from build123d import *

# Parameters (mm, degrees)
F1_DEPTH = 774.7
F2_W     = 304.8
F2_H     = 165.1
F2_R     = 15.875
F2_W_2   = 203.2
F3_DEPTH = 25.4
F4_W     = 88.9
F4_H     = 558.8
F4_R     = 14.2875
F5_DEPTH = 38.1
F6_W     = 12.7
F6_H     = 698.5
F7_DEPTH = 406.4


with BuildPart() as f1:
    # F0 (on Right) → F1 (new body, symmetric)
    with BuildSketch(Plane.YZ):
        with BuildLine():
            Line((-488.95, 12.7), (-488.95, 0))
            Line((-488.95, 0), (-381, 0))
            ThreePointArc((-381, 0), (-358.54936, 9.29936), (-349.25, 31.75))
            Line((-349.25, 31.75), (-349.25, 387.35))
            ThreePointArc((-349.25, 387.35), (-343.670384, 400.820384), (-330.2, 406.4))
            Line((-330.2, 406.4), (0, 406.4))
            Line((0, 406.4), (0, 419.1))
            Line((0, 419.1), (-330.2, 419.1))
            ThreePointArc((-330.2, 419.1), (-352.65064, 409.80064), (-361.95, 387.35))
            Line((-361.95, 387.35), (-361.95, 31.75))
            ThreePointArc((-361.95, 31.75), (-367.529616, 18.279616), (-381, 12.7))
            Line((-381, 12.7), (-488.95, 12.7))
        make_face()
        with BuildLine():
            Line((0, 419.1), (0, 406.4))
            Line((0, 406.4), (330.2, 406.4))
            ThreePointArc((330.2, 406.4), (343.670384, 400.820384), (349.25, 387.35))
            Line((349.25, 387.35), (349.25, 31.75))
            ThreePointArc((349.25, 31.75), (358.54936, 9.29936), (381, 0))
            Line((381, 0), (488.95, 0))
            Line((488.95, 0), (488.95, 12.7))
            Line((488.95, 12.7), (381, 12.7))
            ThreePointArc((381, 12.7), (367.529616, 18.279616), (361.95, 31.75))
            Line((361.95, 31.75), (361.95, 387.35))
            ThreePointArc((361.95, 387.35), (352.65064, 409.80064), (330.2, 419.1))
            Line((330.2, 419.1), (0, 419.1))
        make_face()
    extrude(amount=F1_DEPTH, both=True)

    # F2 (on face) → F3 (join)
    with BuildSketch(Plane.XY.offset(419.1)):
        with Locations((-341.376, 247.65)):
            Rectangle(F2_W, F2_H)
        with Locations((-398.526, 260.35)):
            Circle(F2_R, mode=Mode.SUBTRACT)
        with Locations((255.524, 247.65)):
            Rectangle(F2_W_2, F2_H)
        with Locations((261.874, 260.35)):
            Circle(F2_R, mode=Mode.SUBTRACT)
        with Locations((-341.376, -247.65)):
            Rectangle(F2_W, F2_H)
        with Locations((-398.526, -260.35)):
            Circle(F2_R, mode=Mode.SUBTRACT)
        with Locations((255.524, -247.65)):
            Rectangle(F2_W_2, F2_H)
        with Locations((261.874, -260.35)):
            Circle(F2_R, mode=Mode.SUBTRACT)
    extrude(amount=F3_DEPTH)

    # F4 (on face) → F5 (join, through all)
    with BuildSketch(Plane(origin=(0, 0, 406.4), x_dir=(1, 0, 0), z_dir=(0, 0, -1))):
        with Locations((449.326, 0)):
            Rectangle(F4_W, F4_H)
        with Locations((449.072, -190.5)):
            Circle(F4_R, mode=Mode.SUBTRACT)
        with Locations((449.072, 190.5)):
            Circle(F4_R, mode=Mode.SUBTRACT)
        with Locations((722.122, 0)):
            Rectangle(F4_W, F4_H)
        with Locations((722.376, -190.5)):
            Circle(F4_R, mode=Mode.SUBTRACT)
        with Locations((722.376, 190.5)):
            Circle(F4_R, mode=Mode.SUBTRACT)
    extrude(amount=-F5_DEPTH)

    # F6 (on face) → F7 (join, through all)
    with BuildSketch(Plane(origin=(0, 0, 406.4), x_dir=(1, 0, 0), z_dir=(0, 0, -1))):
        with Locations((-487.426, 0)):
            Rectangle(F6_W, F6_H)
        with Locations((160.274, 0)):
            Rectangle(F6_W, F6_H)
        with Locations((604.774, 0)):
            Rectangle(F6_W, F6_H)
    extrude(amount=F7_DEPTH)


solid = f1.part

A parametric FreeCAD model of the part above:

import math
import FreeCAD as App
import Part
import Sketcher
from FreeCAD import Vector
Q = App.Units.Quantity


def add_polygon(sketch, points):
    """Adds a closed chain of lines whose ends are joined by coincident constraints."""
    first, n = sketch.GeometryCount, len(points)
    for a, b in zip(points, points[1:] + points[:1]):
        sketch.addGeometry(Part.LineSegment(App.Vector(*a, 0), App.Vector(*b, 0)), False)
    for i in range(n):
        sketch.addConstraint(Sketcher.Constraint("Coincident", first + i, 2, first + (i + 1) % n, 1))

doc = App.newDocument("Part")
body = doc.addObject("PartDesign::Body", "Body")

# Sketch on YZ plane
sketch1 = body.newObject("Sketcher::SketchObject", "Sketch")
sketch1.AttachmentSupport = (doc.getObject("YZ_Plane"), [""])
sketch1.MapMode = "FlatFace"
sketch1.addGeometry(Part.LineSegment(Vector(-488.95, 12.7, 0), Vector(-488.95, 0, 0)), False)
sketch1.addGeometry(Part.LineSegment(Vector(-488.95, 0, 0), Vector(-381, 0, 0)), False)
sketch1.addGeometry(Part.ArcOfCircle(Part.Circle(Vector(-381.000001, 31.750001, 0), Vector(0, 0, 1), 31.750001), math.radians(-89.999998), math.radians(-0.000002)), False)
sketch1.addGeometry(Part.LineSegment(Vector(-349.25, 31.75, 0), Vector(-349.25, 387.35, 0)), False)
sketch1.addGeometry(Part.ArcOfCircle(Part.Circle(Vector(-330.199999, 387.349999, 0), Vector(0, 0, 1), 19.050001), math.radians(90.000002), math.radians(179.999998)), False)
sketch1.addGeometry(Part.LineSegment(Vector(-330.2, 406.4, 0), Vector(330.2, 406.4, 0)), False)
sketch1.addGeometry(Part.ArcOfCircle(Part.Circle(Vector(330.199999, 387.349999, 0), Vector(0, 0, 1), 19.050001), math.radians(0.000002), math.radians(89.999998)), False)
sketch1.addGeometry(Part.LineSegment(Vector(349.25, 387.35, 0), Vector(349.25, 31.75, 0)), False)
sketch1.addGeometry(Part.ArcOfCircle(Part.Circle(Vector(381.000001, 31.750001, 0), Vector(0, 0, 1), 31.750001), math.radians(-179.999998), math.radians(-90.000002)), False)
sketch1.addGeometry(Part.LineSegment(Vector(381, 0, 0), Vector(488.95, 0, 0)), False)
sketch1.addGeometry(Part.LineSegment(Vector(488.95, 0, 0), Vector(488.95, 12.7, 0)), False)
sketch1.addGeometry(Part.LineSegment(Vector(488.95, 12.7, 0), Vector(381, 12.7, 0)), False)
sketch1.addGeometry(Part.ArcOfCircle(Part.Circle(Vector(381.000001, 31.750001, 0), Vector(0, 0, 1), 19.050001), math.radians(-179.999998), math.radians(-90.000002)), False)
sketch1.addGeometry(Part.LineSegment(Vector(361.95, 31.75, 0), Vector(361.95, 387.35, 0)), False)
sketch1.addGeometry(Part.ArcOfCircle(Part.Circle(Vector(330.199999, 387.349999, 0), Vector(0, 0, 1), 31.750001), math.radians(0.000002), math.radians(89.999998)), False)
sketch1.addGeometry(Part.LineSegment(Vector(330.2, 419.1, 0), Vector(-330.2, 419.1, 0)), False)
sketch1.addGeometry(Part.ArcOfCircle(Part.Circle(Vector(-330.199999, 387.349999, 0), Vector(0, 0, 1), 31.750001), math.radians(90.000002), math.radians(179.999998)), False)
sketch1.addGeometry(Part.LineSegment(Vector(-361.95, 387.35, 0), Vector(-361.95, 31.75, 0)), False)
sketch1.addGeometry(Part.ArcOfCircle(Part.Circle(Vector(-381.000001, 31.750001, 0), Vector(0, 0, 1), 19.050001), math.radians(-89.999998), math.radians(-0.000002)), False)
sketch1.addGeometry(Part.LineSegment(Vector(-381, 12.7, 0), Vector(-488.95, 12.7, 0)), False)
sketch1.addConstraint(Sketcher.Constraint("Coincident", 0, 2, 1, 1))
sketch1.addConstraint(Sketcher.Constraint("Tangent", 1, 2, 2, 1))
sketch1.addConstraint(Sketcher.Constraint("Tangent", 2, 2, 3, 1))
sketch1.addConstraint(Sketcher.Constraint("Tangent", 3, 2, 4, 2))
sketch1.addConstraint(Sketcher.Constraint("Tangent", 4, 1, 5, 1))
sketch1.addConstraint(Sketcher.Constraint("Tangent", 5, 2, 6, 2))
sketch1.addConstraint(Sketcher.Constraint("Tangent", 6, 1, 7, 1))
sketch1.addConstraint(Sketcher.Constraint("Tangent", 7, 2, 8, 1))
sketch1.addConstraint(Sketcher.Constraint("Tangent", 8, 2, 9, 1))
sketch1.addConstraint(Sketcher.Constraint("Coincident", 9, 2, 10, 1))
sketch1.addConstraint(Sketcher.Constraint("Coincident", 10, 2, 11, 1))
sketch1.addConstraint(Sketcher.Constraint("Tangent", 11, 2, 12, 2))
sketch1.addConstraint(Sketcher.Constraint("Tangent", 12, 1, 13, 1))
sketch1.addConstraint(Sketcher.Constraint("Tangent", 13, 2, 14, 1))
sketch1.addConstraint(Sketcher.Constraint("Tangent", 14, 2, 15, 1))
sketch1.addConstraint(Sketcher.Constraint("Tangent", 15, 2, 16, 1))
sketch1.addConstraint(Sketcher.Constraint("Tangent", 16, 2, 17, 1))
sketch1.addConstraint(Sketcher.Constraint("Tangent", 17, 2, 18, 2))
sketch1.addConstraint(Sketcher.Constraint("Tangent", 18, 1, 19, 1))
sketch1.addConstraint(Sketcher.Constraint("Coincident", 19, 2, 0, 1))
sketch1.addConstraint(Sketcher.Constraint("Vertical", 0))
sketch1.addConstraint(Sketcher.Constraint("Horizontal", 1))
sketch1.addConstraint(Sketcher.Constraint("Vertical", 3))
sketch1.addConstraint(Sketcher.Constraint("Horizontal", 5))
sketch1.addConstraint(Sketcher.Constraint("Vertical", 7))
sketch1.addConstraint(Sketcher.Constraint("Horizontal", 9))
sketch1.addConstraint(Sketcher.Constraint("Vertical", 10))
sketch1.addConstraint(Sketcher.Constraint("Horizontal", 11))
sketch1.addConstraint(Sketcher.Constraint("Vertical", 13))
sketch1.addConstraint(Sketcher.Constraint("Horizontal", 15))
sketch1.addConstraint(Sketcher.Constraint("Vertical", 17))
sketch1.addConstraint(Sketcher.Constraint("Horizontal", 19))
sketch1.addConstraint(Sketcher.Constraint("Coincident", 12, 3, 8, 3))
sketch1.addConstraint(Sketcher.Constraint("Coincident", 14, 3, 6, 3))
sketch1.addConstraint(Sketcher.Constraint("Coincident", 16, 3, 4, 3))
sketch1.addConstraint(Sketcher.Constraint("Coincident", 18, 3, 2, 3))
sketch1.addConstraint(Sketcher.Constraint("Equal", 4, 6))
sketch1.addConstraint(Sketcher.Constraint("Equal", 2, 8))
sketch1.addConstraint(Sketcher.Constraint("Equal", 6, 12))
sketch1.addConstraint(Sketcher.Constraint("Symmetric", 1, 2, 8, 2, -1, 1))
sketch1.addConstraint(Sketcher.Constraint("Symmetric", 0, 2, 9, 2, -2))
sketch1.addConstraint(Sketcher.Constraint("DistanceX", 5, 1, 5, 2, Q("26 in")))
sketch1.addConstraint(Sketcher.Constraint("DistanceY", 3, 1, 3, 2, Q("14 in")))
sketch1.addConstraint(Sketcher.Constraint("Radius", 2, Q("1.25 in")))
sketch1.addConstraint(Sketcher.Constraint("Radius", 4, Q("0.75 in")))
sketch1.addConstraint(Sketcher.Constraint("DistanceX", 0, 2, 17, 2, Q("5 in")))
pad1 = body.newObject("PartDesign::Pad", "Pad")
pad1.Profile = sketch1
pad1.Length = Q("61 in")
pad1.Midplane = True

# Sketch on XY plane
sketch2 = body.newObject("Sketcher::SketchObject", "Sketch001")
sketch2.AttachmentSupport = (doc.getObject("XY_Plane"), [""])
sketch2.MapMode = "FlatFace"
sketch2.AttachmentOffset = App.Placement(Vector(0, 0, 16.5 * 25.4), App.Rotation())
add_polygon(sketch2, [(-493.776, 330.2), (-493.776, 165.1), (-188.976, 165.1), (-188.976, 330.2)])  # lines 0-3
sketch2.addGeometry(Part.Circle(Vector(-398.526, 260.35, 0), Vector(0, 0, 1), 15.875), False)  # 4
add_polygon(sketch2, [(153.924, 330.2), (153.924, 165.1), (357.124, 165.1), (357.124, 330.2)])  # lines 5-8
sketch2.addGeometry(Part.Circle(Vector(261.874, 260.35, 0), Vector(0, 0, 1), 15.875), False)  # 9
add_polygon(sketch2, [(-493.776, -165.1), (-493.776, -330.2), (-188.976, -330.2), (-188.976, -165.1)])  # lines 10-13
sketch2.addGeometry(Part.Circle(Vector(-398.526, -260.35, 0), Vector(0, 0, 1), 15.875), False)  # 14
add_polygon(sketch2, [(153.924, -165.1), (153.924, -330.2), (357.124, -330.2), (357.124, -165.1)])  # lines 15-18
sketch2.addGeometry(Part.Circle(Vector(261.874, -260.35, 0), Vector(0, 0, 1), 15.875), False)  # 19
sketch2.addConstraint(Sketcher.Constraint("Vertical", 0))
sketch2.addConstraint(Sketcher.Constraint("Horizontal", 1))
sketch2.addConstraint(Sketcher.Constraint("Vertical", 2))
sketch2.addConstraint(Sketcher.Constraint("Horizontal", 3))
sketch2.addConstraint(Sketcher.Constraint("Vertical", 5))
sketch2.addConstraint(Sketcher.Constraint("Horizontal", 6))
sketch2.addConstraint(Sketcher.Constraint("Vertical", 7))
sketch2.addConstraint(Sketcher.Constraint("Horizontal", 8))
sketch2.addConstraint(Sketcher.Constraint("Vertical", 10))
sketch2.addConstraint(Sketcher.Constraint("Horizontal", 11))
sketch2.addConstraint(Sketcher.Constraint("Vertical", 12))
sketch2.addConstraint(Sketcher.Constraint("Horizontal", 13))
sketch2.addConstraint(Sketcher.Constraint("Vertical", 15))
sketch2.addConstraint(Sketcher.Constraint("Horizontal", 16))
sketch2.addConstraint(Sketcher.Constraint("Vertical", 17))
sketch2.addConstraint(Sketcher.Constraint("Horizontal", 18))
sketch2.addConstraint(Sketcher.Constraint("Equal", 4, 9))
sketch2.addConstraint(Sketcher.Constraint("Equal", 9, 14))
sketch2.addConstraint(Sketcher.Constraint("Equal", 14, 19))
sketch2.addConstraint(Sketcher.Constraint("Symmetric", 4, 3, 14, 3, -1))
sketch2.addConstraint(Sketcher.Constraint("Symmetric", 9, 3, 19, 3, -1))
sketch2.addConstraint(Sketcher.Constraint("Symmetric", 3, 2, 10, 2, -1))
sketch2.addConstraint(Sketcher.Constraint("Symmetric", 1, 2, 12, 2, -1))
sketch2.addConstraint(Sketcher.Constraint("Symmetric", 8, 2, 15, 2, -1))
sketch2.addConstraint(Sketcher.Constraint("Symmetric", 6, 2, 17, 2, -1))
sketch2.addConstraint(Sketcher.Constraint("Horizontal", 4, 3, 9, 3))
sketch2.addConstraint(Sketcher.Constraint("Horizontal", 1, 2, 5, 2))
sketch2.addConstraint(Sketcher.Constraint("Horizontal", 3, 2, 7, 2))
sketch2.addConstraint(Sketcher.Constraint("Diameter", 4, Q("1.25 in")))
sketch2.addConstraint(Sketcher.Constraint("DistanceX", 1, 1, 1, 2, Q("12 in")))
sketch2.addConstraint(Sketcher.Constraint("DistanceX", 6, 1, 6, 2, Q("8 in")))
sketch2.addConstraint(Sketcher.Constraint("DistanceY", 0, 2, 0, 1, Q("6.5 in")))
sketch2.addConstraint(Sketcher.Constraint("DistanceY", -1, 1, 2, 2, Q("13 in")))
sketch2.addConstraint(Sketcher.Constraint("DistanceX", 4, 3, 9, 3, Q("26 in")))
sketch2.addConstraint(Sketcher.Constraint("DistanceY", 14, 3, 4, 3, Q("20.5 in")))
sketch2.addConstraint(Sketcher.Constraint("DistanceX", 1, 2, 5, 2, Q("13.5 in")))
sketch2.addConstraint(Sketcher.Constraint("DistanceX", 4, 3, -1, 1, Q("15.69 in")))
sketch2.addConstraint(Sketcher.Constraint("DistanceX", 0, 2, -1, 1, Q("19.44 in")))
pad2 = body.newObject("PartDesign::Pad", "Pad001")
pad2.Profile = sketch2
pad2.Length = Q("1 in")

# Sketch on XY plane
sketch3 = body.newObject("Sketcher::SketchObject", "Sketch002")
sketch3.AttachmentSupport = (doc.getObject("XY_Plane"), [""])
sketch3.MapMode = "FlatFace"
sketch3.AttachmentOffset = App.Placement(Vector(0, 0, 16 * 25.4), App.Rotation())
add_polygon(sketch3, [(404.876, -279.4), (404.876, 279.4), (493.776, 279.4), (493.776, -279.4)])  # lines 0-3
sketch3.addGeometry(Part.Circle(Vector(449.072, 190.5, 0), Vector(0, 0, 1), 14.2875), False)  # 4
sketch3.addGeometry(Part.Circle(Vector(449.072, -190.5, 0), Vector(0, 0, 1), 14.2875), False)  # 5
add_polygon(sketch3, [(677.672, -279.4), (677.672, 279.4), (766.572, 279.4), (766.572, -279.4)])  # lines 6-9
sketch3.addGeometry(Part.Circle(Vector(722.376, 190.5, 0), Vector(0, 0, 1), 14.2875), False)  # 10
sketch3.addGeometry(Part.Circle(Vector(722.376, -190.5, 0), Vector(0, 0, 1), 14.2875), False)  # 11
sketch3.addConstraint(Sketcher.Constraint("Vertical", 0))
sketch3.addConstraint(Sketcher.Constraint("Horizontal", 1))
sketch3.addConstraint(Sketcher.Constraint("Vertical", 2))
sketch3.addConstraint(Sketcher.Constraint("Horizontal", 3))
sketch3.addConstraint(Sketcher.Constraint("Vertical", 6))
sketch3.addConstraint(Sketcher.Constraint("Horizontal", 7))
sketch3.addConstraint(Sketcher.Constraint("Vertical", 8))
sketch3.addConstraint(Sketcher.Constraint("Horizontal", 9))
sketch3.addConstraint(Sketcher.Constraint("Equal", 4, 5))
sketch3.addConstraint(Sketcher.Constraint("Equal", 5, 10))
sketch3.addConstraint(Sketcher.Constraint("Equal", 10, 11))
sketch3.addConstraint(Sketcher.Constraint("Symmetric", 4, 3, 5, 3, -1))
sketch3.addConstraint(Sketcher.Constraint("Symmetric", 10, 3, 11, 3, -1))
sketch3.addConstraint(Sketcher.Constraint("Horizontal", 4, 3, 10, 3))
sketch3.addConstraint(Sketcher.Constraint("Horizontal", 1, 2, 6, 2))
sketch3.addConstraint(Sketcher.Constraint("Horizontal", 3, 2, 8, 2))
sketch3.addConstraint(Sketcher.Constraint("Equal", 3, 7))
sketch3.addConstraint(Sketcher.Constraint("DistanceY", 0, 1, 0, 2, Q("22 in")))
sketch3.addConstraint(Sketcher.Constraint("Diameter", 4, Q("1.125 in")))
sketch3.addConstraint(Sketcher.Constraint("DistanceX", 1, 1, 1, 2, Q("3.5 in")))
sketch3.addConstraint(Sketcher.Constraint("DistanceY", -1, 1, 0, 2, Q("11 in")))
sketch3.addConstraint(Sketcher.Constraint("DistanceY", 5, 3, 4, 3, Q("15 in")))
sketch3.addConstraint(Sketcher.Constraint("DistanceX", 1, 2, 10, 3, Q("9 in")))
sketch3.addConstraint(Sketcher.Constraint("DistanceX", 4, 3, 6, 2, Q("9 in")))
sketch3.addConstraint(Sketcher.Constraint("DistanceX", -1, 1, 4, 3, Q("17.68 in")))
sketch3.addConstraint(Sketcher.Constraint("DistanceX", -1, 1, 10, 3, Q("28.44 in")))
pad3 = body.newObject("PartDesign::Pad", "Pad002")
pad3.Profile = sketch3
pad3.Length = Q("1.5 in")

# Sketch on XY plane
sketch4 = body.newObject("Sketcher::SketchObject", "Sketch003")
sketch4.AttachmentSupport = (doc.getObject("XY_Plane"), [""])
sketch4.MapMode = "FlatFace"
sketch4.AttachmentOffset = App.Placement(Vector(0, 0, 16 * 25.4), App.Rotation())
add_polygon(sketch4, [(-493.776, -349.25), (-493.776, 349.25), (-481.076, 349.25), (-481.076, -349.25)])  # lines 0-3
add_polygon(sketch4, [(153.924, -349.25), (153.924, 349.25), (166.624, 349.25), (166.624, -349.25)])  # lines 4-7
add_polygon(sketch4, [(598.424, -349.25), (598.424, 349.25), (611.124, 349.25), (611.124, -349.25)])  # lines 8-11
sketch4.addConstraint(Sketcher.Constraint("Vertical", 0))
sketch4.addConstraint(Sketcher.Constraint("Horizontal", 1))
sketch4.addConstraint(Sketcher.Constraint("Vertical", 2))
sketch4.addConstraint(Sketcher.Constraint("Horizontal", 3))
sketch4.addConstraint(Sketcher.Constraint("Vertical", 4))
sketch4.addConstraint(Sketcher.Constraint("Horizontal", 5))
sketch4.addConstraint(Sketcher.Constraint("Vertical", 6))
sketch4.addConstraint(Sketcher.Constraint("Horizontal", 7))
sketch4.addConstraint(Sketcher.Constraint("Vertical", 8))
sketch4.addConstraint(Sketcher.Constraint("Horizontal", 9))
sketch4.addConstraint(Sketcher.Constraint("Vertical", 10))
sketch4.addConstraint(Sketcher.Constraint("Horizontal", 11))
sketch4.addConstraint(Sketcher.Constraint("Horizontal", 1, 2, 4, 2))
sketch4.addConstraint(Sketcher.Constraint("Horizontal", 3, 2, 6, 2))
sketch4.addConstraint(Sketcher.Constraint("Horizontal", 5, 2, 8, 2))
sketch4.addConstraint(Sketcher.Constraint("Horizontal", 7, 2, 10, 2))
sketch4.addConstraint(Sketcher.Constraint("Equal", 3, 5))
sketch4.addConstraint(Sketcher.Constraint("Equal", 7, 9))
sketch4.addConstraint(Sketcher.Constraint("DistanceX", 1, 1, 1, 2, Q("0.5 in")))
sketch4.addConstraint(Sketcher.Constraint("DistanceY", 0, 1, 0, 2, Q("27.5 in")))
sketch4.addConstraint(Sketcher.Constraint("DistanceX", 1, 2, 4, 2, Q("25 in")))
sketch4.addConstraint(Sketcher.Constraint("DistanceX", 5, 2, 8, 2, Q("17 in")))
sketch4.addConstraint(Sketcher.Constraint("DistanceX", 0, 2, -1, 1, Q("19.44 in")))
sketch4.addConstraint(Sketcher.Constraint("DistanceY", -1, 1, 0, 2, Q("13.75 in")))
pad4 = body.newObject("PartDesign::Pad", "Pad003")
pad4.Profile = sketch4
pad4.Length = Q("16 in")
pad4.Reversed = True

doc.recompute()
